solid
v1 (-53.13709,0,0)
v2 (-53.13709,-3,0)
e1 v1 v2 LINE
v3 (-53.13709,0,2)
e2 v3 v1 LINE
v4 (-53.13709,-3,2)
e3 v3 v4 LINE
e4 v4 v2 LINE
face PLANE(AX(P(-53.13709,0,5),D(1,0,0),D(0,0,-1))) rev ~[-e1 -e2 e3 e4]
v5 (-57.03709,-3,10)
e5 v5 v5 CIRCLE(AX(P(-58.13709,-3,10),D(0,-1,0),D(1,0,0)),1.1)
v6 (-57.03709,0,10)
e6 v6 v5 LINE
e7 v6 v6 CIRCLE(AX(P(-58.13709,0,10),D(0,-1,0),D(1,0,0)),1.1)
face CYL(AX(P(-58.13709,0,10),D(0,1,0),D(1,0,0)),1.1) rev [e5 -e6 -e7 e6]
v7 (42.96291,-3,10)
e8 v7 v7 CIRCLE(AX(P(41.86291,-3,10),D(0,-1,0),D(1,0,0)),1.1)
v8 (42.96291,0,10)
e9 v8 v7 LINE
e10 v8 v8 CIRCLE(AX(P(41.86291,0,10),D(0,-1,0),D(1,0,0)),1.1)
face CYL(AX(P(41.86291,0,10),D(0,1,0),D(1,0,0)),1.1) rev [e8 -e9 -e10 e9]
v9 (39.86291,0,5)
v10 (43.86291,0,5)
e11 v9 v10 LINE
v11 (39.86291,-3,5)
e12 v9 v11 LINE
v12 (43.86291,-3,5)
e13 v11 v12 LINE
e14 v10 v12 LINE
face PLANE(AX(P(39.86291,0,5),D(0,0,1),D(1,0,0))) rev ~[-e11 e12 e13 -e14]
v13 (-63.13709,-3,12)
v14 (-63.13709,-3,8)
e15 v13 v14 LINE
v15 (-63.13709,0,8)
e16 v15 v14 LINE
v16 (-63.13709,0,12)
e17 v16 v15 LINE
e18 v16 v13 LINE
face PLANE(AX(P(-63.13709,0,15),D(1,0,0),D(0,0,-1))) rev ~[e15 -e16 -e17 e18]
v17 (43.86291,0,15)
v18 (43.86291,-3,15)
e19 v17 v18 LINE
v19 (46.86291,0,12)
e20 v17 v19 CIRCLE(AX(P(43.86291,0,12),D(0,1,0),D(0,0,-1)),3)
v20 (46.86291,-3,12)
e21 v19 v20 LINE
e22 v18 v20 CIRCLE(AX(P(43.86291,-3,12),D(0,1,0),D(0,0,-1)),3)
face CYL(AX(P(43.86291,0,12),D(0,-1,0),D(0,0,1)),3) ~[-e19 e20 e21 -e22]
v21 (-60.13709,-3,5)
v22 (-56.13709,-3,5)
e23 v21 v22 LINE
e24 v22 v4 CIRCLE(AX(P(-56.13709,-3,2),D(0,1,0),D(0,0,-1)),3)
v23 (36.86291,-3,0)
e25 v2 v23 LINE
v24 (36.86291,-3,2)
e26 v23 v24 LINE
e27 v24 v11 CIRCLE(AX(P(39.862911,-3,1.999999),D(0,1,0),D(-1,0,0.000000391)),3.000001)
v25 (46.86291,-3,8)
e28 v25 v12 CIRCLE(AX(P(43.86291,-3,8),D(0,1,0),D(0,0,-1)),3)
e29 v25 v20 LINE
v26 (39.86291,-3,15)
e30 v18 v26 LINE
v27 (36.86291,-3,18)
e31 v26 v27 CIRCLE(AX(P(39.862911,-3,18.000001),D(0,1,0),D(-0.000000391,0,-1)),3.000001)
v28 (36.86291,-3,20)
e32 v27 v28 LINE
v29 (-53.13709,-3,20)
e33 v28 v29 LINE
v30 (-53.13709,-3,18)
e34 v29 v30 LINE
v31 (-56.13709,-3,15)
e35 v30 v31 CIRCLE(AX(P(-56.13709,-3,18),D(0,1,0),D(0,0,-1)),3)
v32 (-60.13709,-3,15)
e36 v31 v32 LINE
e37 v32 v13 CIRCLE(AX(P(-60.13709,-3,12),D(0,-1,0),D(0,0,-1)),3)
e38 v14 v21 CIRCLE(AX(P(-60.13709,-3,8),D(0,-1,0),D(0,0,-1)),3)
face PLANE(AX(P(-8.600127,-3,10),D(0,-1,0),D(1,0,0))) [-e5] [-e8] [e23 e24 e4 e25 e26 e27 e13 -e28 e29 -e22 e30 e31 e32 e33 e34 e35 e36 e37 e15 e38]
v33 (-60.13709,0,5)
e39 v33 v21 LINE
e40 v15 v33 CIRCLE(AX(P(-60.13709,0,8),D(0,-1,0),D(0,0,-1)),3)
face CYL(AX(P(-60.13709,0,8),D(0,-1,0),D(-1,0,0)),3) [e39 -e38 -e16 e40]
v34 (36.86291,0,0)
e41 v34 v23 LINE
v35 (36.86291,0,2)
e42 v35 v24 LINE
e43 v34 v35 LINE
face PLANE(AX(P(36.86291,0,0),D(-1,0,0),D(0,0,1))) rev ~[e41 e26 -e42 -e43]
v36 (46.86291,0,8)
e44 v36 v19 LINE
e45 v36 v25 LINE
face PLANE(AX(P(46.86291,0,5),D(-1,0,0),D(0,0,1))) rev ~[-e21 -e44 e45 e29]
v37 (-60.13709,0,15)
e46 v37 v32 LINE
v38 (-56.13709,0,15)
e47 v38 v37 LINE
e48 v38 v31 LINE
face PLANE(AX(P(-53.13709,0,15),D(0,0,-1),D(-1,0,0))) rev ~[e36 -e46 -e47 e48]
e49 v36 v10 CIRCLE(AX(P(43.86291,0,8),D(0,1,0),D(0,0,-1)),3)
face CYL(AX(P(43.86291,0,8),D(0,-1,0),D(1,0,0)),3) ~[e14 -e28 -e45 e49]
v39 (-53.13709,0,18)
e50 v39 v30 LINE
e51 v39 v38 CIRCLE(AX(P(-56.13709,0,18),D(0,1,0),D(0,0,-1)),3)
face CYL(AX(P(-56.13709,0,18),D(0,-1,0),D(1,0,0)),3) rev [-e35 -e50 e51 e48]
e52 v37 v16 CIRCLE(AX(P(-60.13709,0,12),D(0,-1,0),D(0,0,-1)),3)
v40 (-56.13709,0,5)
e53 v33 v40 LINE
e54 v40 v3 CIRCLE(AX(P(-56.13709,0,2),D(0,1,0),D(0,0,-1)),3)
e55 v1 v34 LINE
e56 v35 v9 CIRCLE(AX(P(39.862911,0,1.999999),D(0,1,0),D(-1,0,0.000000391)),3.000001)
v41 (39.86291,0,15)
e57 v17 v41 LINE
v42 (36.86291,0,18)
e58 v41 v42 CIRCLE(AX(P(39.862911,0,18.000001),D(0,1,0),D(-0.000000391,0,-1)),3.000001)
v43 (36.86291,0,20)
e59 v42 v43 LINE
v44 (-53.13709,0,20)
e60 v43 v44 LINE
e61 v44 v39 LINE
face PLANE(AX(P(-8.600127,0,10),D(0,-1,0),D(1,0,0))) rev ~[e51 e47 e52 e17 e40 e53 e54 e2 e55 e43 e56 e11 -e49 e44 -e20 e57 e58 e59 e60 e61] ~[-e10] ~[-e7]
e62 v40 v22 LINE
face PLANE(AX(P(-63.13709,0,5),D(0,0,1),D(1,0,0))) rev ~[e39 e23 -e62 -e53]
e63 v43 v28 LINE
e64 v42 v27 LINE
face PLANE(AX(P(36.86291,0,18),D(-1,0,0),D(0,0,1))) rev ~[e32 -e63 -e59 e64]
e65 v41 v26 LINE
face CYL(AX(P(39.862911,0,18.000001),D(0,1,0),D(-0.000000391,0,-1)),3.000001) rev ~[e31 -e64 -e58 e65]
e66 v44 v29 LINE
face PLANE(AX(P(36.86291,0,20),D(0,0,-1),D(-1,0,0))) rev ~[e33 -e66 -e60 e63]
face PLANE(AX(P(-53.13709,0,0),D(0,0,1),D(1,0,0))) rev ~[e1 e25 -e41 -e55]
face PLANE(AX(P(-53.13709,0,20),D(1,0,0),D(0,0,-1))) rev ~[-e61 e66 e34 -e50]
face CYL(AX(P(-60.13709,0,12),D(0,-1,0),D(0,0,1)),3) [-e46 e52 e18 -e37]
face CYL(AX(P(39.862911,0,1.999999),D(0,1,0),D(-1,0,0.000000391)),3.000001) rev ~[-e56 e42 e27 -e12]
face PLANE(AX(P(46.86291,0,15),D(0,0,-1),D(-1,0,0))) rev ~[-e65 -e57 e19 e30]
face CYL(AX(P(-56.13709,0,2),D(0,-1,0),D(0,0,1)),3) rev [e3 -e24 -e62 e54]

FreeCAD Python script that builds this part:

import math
import FreeCAD as App
import Part
import Sketcher


def edges_at(feature, points):
    """Names of the edges that pass closest to the given points."""
    edges = feature.Shape.Edges
    near = lambda p: min(range(len(edges)), key=lambda i: edges[i].distToShape(Part.Vertex(*p))[0])
    return sorted({f"Edge{near(p) + 1}" for p in points})

doc = App.newDocument("Part")
body = doc.addObject("PartDesign::Body", "Body")

sketch1 = body.newObject("Sketcher::SketchObject", "Sketch")
sketch1.AttachmentSupport = (doc.getObject("XZ_Plane"), [""])
sketch1.MapMode = "FlatFace"
sketch1.addGeometry(Part.LineSegment(App.Vector(36.9, 20, 0), App.Vector(-53.1, 20, 0)), False)
sketch1.addGeometry(Part.LineSegment(App.Vector(-53.1, 20, 0), App.Vector(-53.1, 15, 0)), False)
sketch1.addGeometry(Part.LineSegment(App.Vector(-53.1, 15, 0), App.Vector(-63.1, 15, 0)), False)
sketch1.addGeometry(Part.LineSegment(App.Vector(-63.1, 15, 0), App.Vector(-63.1, 5, 0)), False)
sketch1.addGeometry(Part.LineSegment(App.Vector(-63.1, 5, 0), App.Vector(-53.1, 5, 0)), False)
sketch1.addGeometry(Part.LineSegment(App.Vector(-53.1, 5, 0), App.Vector(-53.1, 0, 0)), False)
sketch1.addGeometry(Part.LineSegment(App.Vector(-53.1, 0, 0), App.Vector(36.9, 0, 0)), False)
sketch1.addGeometry(Part.LineSegment(App.Vector(36.9, 0, 0), App.Vector(36.9, 2, 0)), False)
sketch1.addGeometry(Part.ArcOfCircle(Part.Circle(App.Vector(39.9, 2, 0), App.Vector(0, 0, 1), 3), math.radians(90), math.radians(180)), False)
sketch1.addGeometry(Part.LineSegment(App.Vector(39.9, 5, 0), App.Vector(46.9, 5, 0)), False)
sketch1.addGeometry(Part.LineSegment(App.Vector(46.9, 5, 0), App.Vector(46.9, 15, 0)), False)
sketch1.addGeometry(Part.LineSegment(App.Vector(46.9, 15, 0), App.Vector(39.9, 15, 0)), False)
sketch1.addGeometry(Part.ArcOfCircle(Part.Circle(App.Vector(39.9, 18, 0), App.Vector(0, 0, 1), 3), math.radians(-180), math.radians(-90)), False)
sketch1.addGeometry(Part.LineSegment(App.Vector(36.9, 18, 0), App.Vector(36.9, 20, 0)), False)
sketch1.addGeometry(Part.Circle(App.Vector(-58.1, 10, 0), App.Vector(0, 0, 1), 1.1), False)
sketch1.addGeometry(Part.Circle(App.Vector(41.9, 10, 0), App.Vector(0, 0, 1), 1.1), False)
sketch1.addConstraint(Sketcher.Constraint("Coincident", 0, 2, 1, 1))
sketch1.addConstraint(Sketcher.Constraint("Coincident", 1, 2, 2, 1))
sketch1.addConstraint(Sketcher.Constraint("Coincident", 2, 2, 3, 1))
sketch1.addConstraint(Sketcher.Constraint("Coincident", 3, 2, 4, 1))
sketch1.addConstraint(Sketcher.Constraint("Coincident", 4, 2, 5, 1))
sketch1.addConstraint(Sketcher.Constraint("Coincident", 5, 2, 6, 1))
sketch1.addConstraint(Sketcher.Constraint("Coincident", 6, 2, 7, 1))
sketch1.addConstraint(Sketcher.Constraint("Tangent", 7, 2, 8, 2))
sketch1.addConstraint(Sketcher.Constraint("Tangent", 8, 1, 9, 1))
sketch1.addConstraint(Sketcher.Constraint("Coincident", 9, 2, 10, 1))
sketch1.addConstraint(Sketcher.Constraint("Coincident", 10, 2, 11, 1))
sketch1.addConstraint(Sketcher.Constraint("Tangent", 11, 2, 12, 2))
sketch1.addConstraint(Sketcher.Constraint("Tangent", 12, 1, 13, 1))
sketch1.addConstraint(Sketcher.Constraint("Coincident", 13, 2, 0, 1))
sketch1.addConstraint(Sketcher.Constraint("Horizontal", 0))
sketch1.addConstraint(Sketcher.Constraint("Vertical", 1))
sketch1.addConstraint(Sketcher.Constraint("Horizontal", 2))
sketch1.addConstraint(Sketcher.Constraint("Vertical", 3))
sketch1.addConstraint(Sketcher.Constraint("Horizontal", 4))
sketch1.addConstraint(Sketcher.Constraint("Vertical", 5))
sketch1.addConstraint(Sketcher.Constraint("Horizontal", 6))
sketch1.addConstraint(Sketcher.Constraint("Vertical", 7))
sketch1.addConstraint(Sketcher.Constraint("Horizontal", 9))
sketch1.addConstraint(Sketcher.Constraint("Vertical", 10))
sketch1.addConstraint(Sketcher.Constraint("Horizontal", 11))
sketch1.addConstraint(Sketcher.Constraint("Vertical", 13))
sketch1.addConstraint(Sketcher.Constraint("Equal", 8, 12))
sketch1.addConstraint(Sketcher.Constraint("Equal", 14, 15))
sketch1.addConstraint(Sketcher.Constraint("PointOnObject", 5, 2, -1))
sketch1.addConstraint(Sketcher.Constraint("Horizontal", 14, 3, 15, 3))
sketch1.addConstraint(Sketcher.Constraint("Horizontal", 4, 2, 8, 1))
sketch1.addConstraint(Sketcher.Constraint("Horizontal", 2, 2, 10, 2))
sketch1.addConstraint(Sketcher.Constraint("Vertical", 8, 3, 12, 3))
sketch1.addConstraint(Sketcher.Constraint("Vertical", 1, 2, 4, 2))
sketch1.addConstraint(Sketcher.Constraint("Equal", 4, 3))
sketch1.addConstraint(Sketcher.Constraint("Equal", 1, 5))
sketch1.addConstraint(Sketcher.Constraint("Radius", 8, 3.000001))
sketch1.addConstraint(Sketcher.Constraint("Diameter", 14, 2.2))
sketch1.addConstraint(Sketcher.Constraint("DistanceX", 0, 2, 0, 1, 90.0))
sketch1.addConstraint(Sketcher.Constraint("DistanceX", 2, 2, 2, 1, 10.0))
sketch1.addConstraint(Sketcher.Constraint("DistanceX", 9, 1, 9, 2, 7.0))
sketch1.addConstraint(Sketcher.Constraint("DistanceY", 1, 2, 1, 1, 5.0))
sketch1.addConstraint(Sketcher.Constraint("DistanceY", -1, 1, 14, 3, 10.0))
sketch1.addConstraint(Sketcher.Constraint("DistanceX", 14, 3, 8, 3, 98.000001))
sketch1.addConstraint(Sketcher.Constraint("DistanceX", 8, 3, 15, 3, 1.999999))
sketch1.addConstraint(Sketcher.Constraint("DistanceX", -1, 1, 8, 3, 39.862911))
pad1 = body.newObject("PartDesign::Pad", "Pad")
pad1.Profile = sketch1
pad1.Length = 3
doc.recompute()

fillet = body.newObject("PartDesign::Fillet", "Fillet")
fillet.Base = (pad1, edges_at(pad1, [
    (-53.137, -1.5, 15),
    (-53.137, -1.5, 5),
    (-63.137, -1.5, 15),
    (-63.137, -1.5, 5),
    (46.863, -1.5, 5),
    (46.863, -1.5, 15),
]))
fillet.Radius = 3

doc.recompute()
